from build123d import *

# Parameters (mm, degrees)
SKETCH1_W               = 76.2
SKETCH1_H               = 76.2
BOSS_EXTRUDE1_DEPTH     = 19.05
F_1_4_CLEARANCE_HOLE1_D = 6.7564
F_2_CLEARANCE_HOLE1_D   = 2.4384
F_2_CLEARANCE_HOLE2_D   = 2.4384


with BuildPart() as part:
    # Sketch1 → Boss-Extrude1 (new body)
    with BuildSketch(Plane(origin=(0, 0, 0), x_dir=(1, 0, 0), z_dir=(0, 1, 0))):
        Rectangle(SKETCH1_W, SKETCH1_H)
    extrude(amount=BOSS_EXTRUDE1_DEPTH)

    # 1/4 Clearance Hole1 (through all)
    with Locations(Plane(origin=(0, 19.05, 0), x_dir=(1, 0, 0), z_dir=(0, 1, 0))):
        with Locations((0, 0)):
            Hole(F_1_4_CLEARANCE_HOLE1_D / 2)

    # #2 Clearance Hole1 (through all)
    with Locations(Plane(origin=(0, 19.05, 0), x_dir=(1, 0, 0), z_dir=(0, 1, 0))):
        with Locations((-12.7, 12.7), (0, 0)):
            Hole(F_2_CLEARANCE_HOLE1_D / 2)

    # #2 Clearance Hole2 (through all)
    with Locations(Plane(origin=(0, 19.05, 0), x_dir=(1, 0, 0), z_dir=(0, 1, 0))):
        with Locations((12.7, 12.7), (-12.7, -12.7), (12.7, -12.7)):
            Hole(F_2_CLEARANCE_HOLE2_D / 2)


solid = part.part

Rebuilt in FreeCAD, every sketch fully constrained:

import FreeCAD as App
import Part
import Sketcher
Q = App.Units.Quantity

doc = App.newDocument("Part")
params = doc.addObject("Spreadsheet::Sheet", "Params")
for row, (alias, value) in enumerate([
    ("sketch1_width", "3 in"),
    ("pad1_length", "0.75 in"),
    ("sketch2_diameter", "0.266 in"),
    ("hole_diameter", "0.266 in"),
    ("sketch3_diameter", "0.096 in"),
    ("hole2_diameter", "0.096 in"),
    ("sketch4_diameter", "0.096 in"),
    ("hole3_diameter", "0.096 in"),
], start=1):
    params.set(f"A{row}", alias)
    params.set(f"B{row}", "=" + value)
    params.setAlias(f"B{row}", alias)

body = doc.addObject("PartDesign::Body", "Body")

sketch1 = doc.addObject("Sketcher::SketchObject", "Sketch")
body.addObject(sketch1)
sketch1.AttachmentSupport = (doc.XZ_Plane, [""])
sketch1.MapMode = "FlatFace"
sketch1.addGeometry([
    Part.LineSegment(App.Vector(-38, -38, 0), App.Vector(-38, 38, 0)),
    Part.LineSegment(App.Vector(-38, 38, 0), App.Vector(38, 38, 0)),
    Part.LineSegment(App.Vector(38, 38, 0), App.Vector(38, -38, 0)),
    Part.LineSegment(App.Vector(38, -38, 0), App.Vector(-38, -38, 0)),
], False)
sketch1.addConstraint([
    Sketcher.Constraint("Coincident", 0, 2, 1, 1),
    Sketcher.Constraint("Coincident", 1, 2, 2, 1),
    Sketcher.Constraint("Coincident", 2, 2, 3, 1),
    Sketcher.Constraint("Coincident", 3, 2, 0, 1),
    Sketcher.Constraint("Vertical", 0),
    Sketcher.Constraint("Horizontal", 1),
    Sketcher.Constraint("Vertical", 2),
    Sketcher.Constraint("Horizontal", 3),
    Sketcher.Constraint("Symmetric", 0, 2, 2, 2, -1, 1),
    Sketcher.Constraint("Equal", 3, 0),
    Sketcher.Constraint("DistanceX", 1, 1, 1, 2, Q("3 in")),
])
sketch1.setExpression("Constraints[10]", "Params.sketch1_width")
pad1 = doc.addObject("PartDesign::Pad", "Pad")
body.addObject(pad1)
pad1.Profile = sketch1
pad1.setExpression("Length", "Params.pad1_length")
pad1.Reversed = True

sketch2 = doc.addObject("Sketcher::SketchObject", "Sketch001")
body.addObject(sketch2)
sketch2.AttachmentSupport = (doc.XZ_Plane, [""])
sketch2.MapMode = "FlatFace"
sketch2.AttachmentOffset = App.Placement(App.Vector(0, 0, -0.75 * 25.4), App.Rotation())
sketch2.addGeometry(Part.Circle(App.Vector(0, 0, 0), App.Vector(0, 0, 1), 3.4), False)
sketch2.addConstraint([
    Sketcher.Constraint("Coincident", 0, 3, -1, 1),
    Sketcher.Constraint("Diameter", 0, Q("0.266 in")),
])
sketch2.setExpression("Constraints[1]", "Params.sketch2_diameter")
doc.recompute()
hole = doc.addObject("PartDesign::Hole", "Hole")
body.addObject(hole)
hole.Profile = sketch2
hole.ThreadType = "None"
hole.setExpression("Diameter", "Params.hole_diameter")
hole.DepthType = "ThroughAll"
hole.Reversed = True

sketch3 = doc.addObject("Sketcher::SketchObject", "Sketch002")
body.addObject(sketch3)
sketch3.AttachmentSupport = (doc.XZ_Plane, [""])
sketch3.MapMode = "FlatFace"
sketch3.AttachmentOffset = App.Placement(App.Vector(0, 0, -0.75 * 25.4), App.Rotation())
sketch3.addGeometry([
    Part.Circle(App.Vector(-12.7, -12.7, 0), App.Vector(0, 0, 1), 1.2),
    Part.Circle(App.Vector(0, 0, 0), App.Vector(0, 0, 1), 1.2),
], False)
sketch3.addConstraint([
    Sketcher.Constraint("Coincident", 1, 3, -1, 1),
    Sketcher.Constraint("Equal", 0, 1),
    Sketcher.Constraint("Diameter", 0, Q("0.096 in")),
    Sketcher.Constraint("DistanceX", 0, 3, -1, 1, Q("0.5 in")),
    Sketcher.Constraint("DistanceY", 0, 3, -1, 1, Q("0.5 in")),
])
sketch3.setExpression("Constraints[2]", "Params.sketch3_diameter")
doc.recompute()
hole2 = doc.addObject("PartDesign::Hole", "Hole001")
body.addObject(hole2)
hole2.Profile = sketch3
hole2.ThreadType = "None"
hole2.setExpression("Diameter", "Params.hole2_diameter")
hole2.DepthType = "ThroughAll"
hole2.Reversed = True

sketch4 = doc.addObject("Sketcher::SketchObject", "Sketch003")
body.addObject(sketch4)
sketch4.AttachmentSupport = (doc.XZ_Plane, [""])
sketch4.MapMode = "FlatFace"
sketch4.AttachmentOffset = App.Placement(App.Vector(0, 0, -0.75 * 25.4), App.Rotation())
sketch4.addGeometry([
    Part.Circle(App.Vector(12.7, -12.7, 0), App.Vector(0, 0, 1), 1.2),
    Part.Circle(App.Vector(-12.7, 12.7, 0), App.Vector(0, 0, 1), 1.2),
    Part.Circle(App.Vector(12.7, 12.7, 0), App.Vector(0, 0, 1), 1.2),
], False)
sketch4.addConstraint([
    Sketcher.Constraint("Equal", 0, 1),
    Sketcher.Constraint("Equal", 1, 2),
    Sketcher.Constraint("Symmetric", 0, 3, 1, 3, -1, 1),
    Sketcher.Constraint("Symmetric", 1, 3, 2, 3, -2),
    Sketcher.Constraint("Diameter", 0, Q("0.096 in")),
    Sketcher.Constraint("DistanceX", 1, 3, 0, 3, Q("1 in")),
    Sketcher.Constraint("DistanceY", 0, 3, 1, 3, Q("1 in")),
])
sketch4.setExpression("Constraints[4]", "Params.sketch4_diameter")
doc.recompute()
hole3 = doc.addObject("PartDesign::Hole", "Hole002")
body.addObject(hole3)
hole3.Profile = sketch4
hole3.ThreadType = "None"
hole3.setExpression("Diameter", "Params.hole3_diameter")
hole3.DepthType = "ThroughAll"
hole3.Reversed = True

doc.recompute()
